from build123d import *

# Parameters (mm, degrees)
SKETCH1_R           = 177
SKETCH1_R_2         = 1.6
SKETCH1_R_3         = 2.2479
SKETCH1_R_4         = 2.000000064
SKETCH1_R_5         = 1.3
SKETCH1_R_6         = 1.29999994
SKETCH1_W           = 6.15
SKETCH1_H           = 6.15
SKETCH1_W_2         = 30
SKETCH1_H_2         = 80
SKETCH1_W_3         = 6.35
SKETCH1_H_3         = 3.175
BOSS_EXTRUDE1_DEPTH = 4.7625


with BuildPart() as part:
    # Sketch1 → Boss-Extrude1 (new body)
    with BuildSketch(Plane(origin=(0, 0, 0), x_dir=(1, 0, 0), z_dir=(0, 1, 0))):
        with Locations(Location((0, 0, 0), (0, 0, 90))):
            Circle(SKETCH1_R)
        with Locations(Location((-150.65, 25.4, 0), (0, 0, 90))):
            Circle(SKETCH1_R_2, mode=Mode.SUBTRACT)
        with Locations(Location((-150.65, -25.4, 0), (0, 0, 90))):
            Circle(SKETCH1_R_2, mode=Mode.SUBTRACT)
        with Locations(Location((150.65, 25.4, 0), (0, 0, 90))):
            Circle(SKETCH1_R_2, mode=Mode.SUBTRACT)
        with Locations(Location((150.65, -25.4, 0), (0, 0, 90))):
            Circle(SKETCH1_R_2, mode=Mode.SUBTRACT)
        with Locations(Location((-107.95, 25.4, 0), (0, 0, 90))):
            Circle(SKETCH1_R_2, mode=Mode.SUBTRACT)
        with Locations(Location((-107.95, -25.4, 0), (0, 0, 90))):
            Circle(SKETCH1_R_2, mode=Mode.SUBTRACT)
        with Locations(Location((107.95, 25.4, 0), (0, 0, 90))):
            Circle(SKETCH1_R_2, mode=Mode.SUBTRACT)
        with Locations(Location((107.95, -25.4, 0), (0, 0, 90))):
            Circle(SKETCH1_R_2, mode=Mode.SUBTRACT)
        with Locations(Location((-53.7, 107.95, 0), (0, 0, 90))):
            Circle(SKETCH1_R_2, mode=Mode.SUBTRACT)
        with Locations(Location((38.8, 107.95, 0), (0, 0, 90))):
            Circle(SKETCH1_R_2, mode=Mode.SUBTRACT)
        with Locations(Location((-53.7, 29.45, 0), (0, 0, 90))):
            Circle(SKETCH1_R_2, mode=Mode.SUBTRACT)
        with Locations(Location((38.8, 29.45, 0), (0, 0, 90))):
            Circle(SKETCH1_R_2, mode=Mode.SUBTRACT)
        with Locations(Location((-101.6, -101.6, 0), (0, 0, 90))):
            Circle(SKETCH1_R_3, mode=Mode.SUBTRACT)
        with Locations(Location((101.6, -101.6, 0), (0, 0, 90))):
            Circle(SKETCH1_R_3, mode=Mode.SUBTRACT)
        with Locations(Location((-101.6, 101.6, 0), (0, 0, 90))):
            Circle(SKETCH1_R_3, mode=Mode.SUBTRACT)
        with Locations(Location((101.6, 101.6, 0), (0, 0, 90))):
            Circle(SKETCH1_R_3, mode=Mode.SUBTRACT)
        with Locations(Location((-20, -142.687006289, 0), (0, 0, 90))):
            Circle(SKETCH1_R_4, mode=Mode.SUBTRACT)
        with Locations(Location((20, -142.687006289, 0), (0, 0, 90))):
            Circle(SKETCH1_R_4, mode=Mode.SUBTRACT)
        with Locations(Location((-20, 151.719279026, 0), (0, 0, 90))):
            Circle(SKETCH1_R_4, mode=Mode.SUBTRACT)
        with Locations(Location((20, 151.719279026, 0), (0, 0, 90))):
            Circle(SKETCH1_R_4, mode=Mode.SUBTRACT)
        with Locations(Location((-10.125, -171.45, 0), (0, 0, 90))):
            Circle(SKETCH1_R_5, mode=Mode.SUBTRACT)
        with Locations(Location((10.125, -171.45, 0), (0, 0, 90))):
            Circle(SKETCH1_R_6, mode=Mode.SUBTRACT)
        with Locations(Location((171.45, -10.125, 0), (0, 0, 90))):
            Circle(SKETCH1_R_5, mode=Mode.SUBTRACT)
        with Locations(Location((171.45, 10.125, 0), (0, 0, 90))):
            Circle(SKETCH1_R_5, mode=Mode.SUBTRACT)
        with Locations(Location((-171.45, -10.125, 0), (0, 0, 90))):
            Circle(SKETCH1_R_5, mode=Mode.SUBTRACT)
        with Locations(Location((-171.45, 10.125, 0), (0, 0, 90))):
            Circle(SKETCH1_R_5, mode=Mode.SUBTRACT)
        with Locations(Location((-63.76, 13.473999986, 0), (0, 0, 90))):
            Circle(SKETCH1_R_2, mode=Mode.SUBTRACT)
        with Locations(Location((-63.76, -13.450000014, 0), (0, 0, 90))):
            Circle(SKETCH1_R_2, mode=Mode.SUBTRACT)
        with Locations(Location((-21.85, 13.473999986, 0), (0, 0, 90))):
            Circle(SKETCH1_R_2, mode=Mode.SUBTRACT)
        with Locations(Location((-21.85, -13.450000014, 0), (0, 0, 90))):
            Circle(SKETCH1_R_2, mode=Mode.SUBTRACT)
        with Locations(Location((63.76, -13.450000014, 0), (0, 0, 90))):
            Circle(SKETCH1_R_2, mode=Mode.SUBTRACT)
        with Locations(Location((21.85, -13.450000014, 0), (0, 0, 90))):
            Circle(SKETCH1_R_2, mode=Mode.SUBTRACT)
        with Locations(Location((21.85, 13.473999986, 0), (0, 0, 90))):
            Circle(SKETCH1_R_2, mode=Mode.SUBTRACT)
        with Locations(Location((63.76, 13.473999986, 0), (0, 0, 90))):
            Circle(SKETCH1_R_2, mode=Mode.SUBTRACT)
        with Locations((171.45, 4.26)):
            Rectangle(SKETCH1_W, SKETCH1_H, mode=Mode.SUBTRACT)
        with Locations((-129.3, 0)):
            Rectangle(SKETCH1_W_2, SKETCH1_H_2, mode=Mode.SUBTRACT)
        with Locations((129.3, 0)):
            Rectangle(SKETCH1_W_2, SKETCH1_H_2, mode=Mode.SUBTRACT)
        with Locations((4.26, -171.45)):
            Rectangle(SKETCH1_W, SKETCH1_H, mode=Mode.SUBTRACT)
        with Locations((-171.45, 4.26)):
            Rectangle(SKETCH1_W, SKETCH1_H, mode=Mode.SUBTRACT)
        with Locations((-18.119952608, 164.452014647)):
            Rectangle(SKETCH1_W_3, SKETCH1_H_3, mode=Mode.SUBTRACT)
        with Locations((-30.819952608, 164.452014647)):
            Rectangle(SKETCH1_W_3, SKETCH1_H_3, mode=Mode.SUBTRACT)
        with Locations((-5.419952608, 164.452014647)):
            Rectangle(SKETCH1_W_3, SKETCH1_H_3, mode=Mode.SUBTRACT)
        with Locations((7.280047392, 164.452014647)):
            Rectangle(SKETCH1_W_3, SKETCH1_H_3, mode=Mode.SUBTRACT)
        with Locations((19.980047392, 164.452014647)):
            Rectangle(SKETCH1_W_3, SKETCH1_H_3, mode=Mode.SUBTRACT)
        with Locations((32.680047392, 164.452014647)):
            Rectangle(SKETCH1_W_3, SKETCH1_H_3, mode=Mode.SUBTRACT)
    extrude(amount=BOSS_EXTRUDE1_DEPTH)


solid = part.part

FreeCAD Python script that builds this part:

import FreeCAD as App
import Part
import Sketcher
Q = App.Units.Quantity

doc = App.newDocument("Part")
body = doc.addObject("PartDesign::Body", "Body")

sketch1 = body.newObject("Sketcher::SketchObject", "Sketch")
sketch1.AttachmentSupport = (doc.getObject("XZ_Plane"), [""])
sketch1.MapMode = "FlatFace"
sketch1.addGeometry([
    Part.Circle(App.Vector(0, 0, 0), App.Vector(0, 0, 1), 177),
    Part.Circle(App.Vector(101.6, 101.6, 0), App.Vector(0, 0, 1), 2.2),
    Part.Circle(App.Vector(171.4, 10.1, 0), App.Vector(0, 0, 1), 1.3),
    Part.Circle(App.Vector(150.7, 25.4, 0), App.Vector(0, 0, 1), 1.6),
    Part.Circle(App.Vector(108, 25.4, 0), App.Vector(0, 0, 1), 1.6),
    Part.Circle(App.Vector(10.1, 171.4, 0), App.Vector(0, 0, 1), 1.3),
    Part.LineSegment(App.Vector(7.3, 174.5, 0), App.Vector(1.2, 174.5, 0)),
    Part.LineSegment(App.Vector(1.2, 174.5, 0), App.Vector(1.2, 168.4, 0)),
    Part.LineSegment(App.Vector(1.2, 168.4, 0), App.Vector(7.3, 168.4, 0)),
    Part.LineSegment(App.Vector(7.3, 168.4, 0), App.Vector(7.3, 174.5, 0)),
    Part.Circle(App.Vector(20, 142.7, 0), App.Vector(0, 0, 1), 2),
    Part.Circle(App.Vector(63.8, 13.5, 0), App.Vector(0, 0, 1), 1.6),
    Part.Circle(App.Vector(21.9, 13.5, 0), App.Vector(0, 0, 1), 1.6),
    Part.LineSegment(App.Vector(174.5, -1.2, 0), App.Vector(168.4, -1.2, 0)),
    Part.LineSegment(App.Vector(168.4, -1.2, 0), App.Vector(168.4, -7.3, 0)),
    Part.LineSegment(App.Vector(168.4, -7.3, 0), App.Vector(174.5, -7.3, 0)),
    Part.LineSegment(App.Vector(174.5, -7.3, 0), App.Vector(174.5, -1.2, 0)),
    Part.Circle(App.Vector(171.4, -10.1, 0), App.Vector(0, 0, 1), 1.3),
    Part.Circle(App.Vector(150.7, -25.4, 0), App.Vector(0, 0, 1), 1.6),
    Part.LineSegment(App.Vector(144.3, 40, 0), App.Vector(114.3, 40, 0)),
    Part.LineSegment(App.Vector(114.3, 40, 0), App.Vector(114.3, -40, 0)),
    Part.LineSegment(App.Vector(114.3, -40, 0), App.Vector(144.3, -40, 0)),
    Part.LineSegment(App.Vector(144.3, -40, 0), App.Vector(144.3, 40, 0)),
    Part.Circle(App.Vector(108, -25.4, 0), App.Vector(0, 0, 1), 1.6),
    Part.Circle(App.Vector(101.6, -101.6, 0), App.Vector(0, 0, 1), 2.2),
    Part.Circle(App.Vector(63.8, -13.5, 0), App.Vector(0, 0, 1), 1.6),
    Part.Circle(App.Vector(21.9, -13.5, 0), App.Vector(0, 0, 1), 1.6),
    Part.Circle(App.Vector(38.8, -29.4, 0), App.Vector(0, 0, 1), 1.6),
    Part.Circle(App.Vector(38.8, -108, 0), App.Vector(0, 0, 1), 1.6),
    Part.LineSegment(App.Vector(35.9, -162.9, 0), App.Vector(29.5, -162.9, 0)),
    Part.LineSegment(App.Vector(29.5, -162.9, 0), App.Vector(29.5, -166, 0)),
    Part.LineSegment(App.Vector(29.5, -166, 0), App.Vector(35.9, -166, 0)),
    Part.LineSegment(App.Vector(35.9, -166, 0), App.Vector(35.9, -162.9, 0)),
    Part.Circle(App.Vector(20, -151.7, 0), App.Vector(0, 0, 1), 2),
    Part.LineSegment(App.Vector(23.2, -162.9, 0), App.Vector(16.8, -162.9, 0)),
    Part.LineSegment(App.Vector(16.8, -162.9, 0), App.Vector(16.8, -166, 0)),
    Part.LineSegment(App.Vector(16.8, -166, 0), App.Vector(23.2, -166, 0)),
    Part.LineSegment(App.Vector(23.2, -166, 0), App.Vector(23.2, -162.9, 0)),
    Part.LineSegment(App.Vector(10.5, -162.9, 0), App.Vector(4.1, -162.9, 0)),
    Part.LineSegment(App.Vector(4.1, -162.9, 0), App.Vector(4.1, -166, 0)),
    Part.LineSegment(App.Vector(4.1, -166, 0), App.Vector(10.5, -166, 0)),
    Part.LineSegment(App.Vector(10.5, -166, 0), App.Vector(10.5, -162.9, 0)),
    Part.Circle(App.Vector(-10.1, 171.4, 0), App.Vector(0, 0, 1), 1.3),
    Part.Circle(App.Vector(-20, 142.7, 0), App.Vector(0, 0, 1), 2),
    Part.Circle(App.Vector(-21.9, 13.5, 0), App.Vector(0, 0, 1), 1.6),
    Part.Circle(App.Vector(-63.8, 13.5, 0), App.Vector(0, 0, 1), 1.6),
    Part.Circle(App.Vector(-101.6, 101.6, 0), App.Vector(0, 0, 1), 2.2),
    Part.Circle(App.Vector(-108, 25.4, 0), App.Vector(0, 0, 1), 1.6),
    Part.Circle(App.Vector(-150.7, 25.4, 0), App.Vector(0, 0, 1), 1.6),
    Part.Circle(App.Vector(-171.4, 10.1, 0), App.Vector(0, 0, 1), 1.3),
    Part.Circle(App.Vector(-21.9, -13.5, 0), App.Vector(0, 0, 1), 1.6),
    Part.Circle(App.Vector(-63.8, -13.5, 0), App.Vector(0, 0, 1), 1.6),
    Part.Circle(App.Vector(-53.7, -29.4, 0), App.Vector(0, 0, 1), 1.6),
    Part.LineSegment(App.Vector(-2.2, -162.9, 0), App.Vector(-8.6, -162.9, 0)),
    Part.LineSegment(App.Vector(-8.6, -162.9, 0), App.Vector(-8.6, -166, 0)),
    Part.LineSegment(App.Vector(-8.6, -166, 0), App.Vector(-2.2, -166, 0)),
    Part.LineSegment(App.Vector(-2.2, -166, 0), App.Vector(-2.2, -162.9, 0)),
    Part.Circle(App.Vector(-20, -151.7, 0), App.Vector(0, 0, 1), 2),
    Part.LineSegment(App.Vector(-14.9, -162.9, 0), App.Vector(-21.3, -162.9, 0)),
    Part.LineSegment(App.Vector(-21.3, -162.9, 0), App.Vector(-21.3, -166, 0)),
    Part.LineSegment(App.Vector(-21.3, -166, 0), App.Vector(-14.9, -166, 0)),
    Part.LineSegment(App.Vector(-14.9, -166, 0), App.Vector(-14.9, -162.9, 0)),
    Part.LineSegment(App.Vector(-27.6, -162.9, 0), App.Vector(-34, -162.9, 0)),
    Part.LineSegment(App.Vector(-34, -162.9, 0), App.Vector(-34, -166, 0)),
    Part.LineSegment(App.Vector(-34, -166, 0), App.Vector(-27.6, -166, 0)),
    Part.LineSegment(App.Vector(-27.6, -166, 0), App.Vector(-27.6, -162.9, 0)),
    Part.Circle(App.Vector(-53.7, -108, 0), App.Vector(0, 0, 1), 1.6),
    Part.Circle(App.Vector(-108, -25.4, 0), App.Vector(0, 0, 1), 1.6),
    Part.LineSegment(App.Vector(-114.3, 40, 0), App.Vector(-144.3, 40, 0)),
    Part.LineSegment(App.Vector(-144.3, 40, 0), App.Vector(-144.3, -40, 0)),
    Part.LineSegment(App.Vector(-144.3, -40, 0), App.Vector(-114.3, -40, 0)),
    Part.LineSegment(App.Vector(-114.3, -40, 0), App.Vector(-114.3, 40, 0)),
    Part.Circle(App.Vector(-150.7, -25.4, 0), App.Vector(0, 0, 1), 1.6),
    Part.LineSegment(App.Vector(-168.4, -1.2, 0), App.Vector(-174.5, -1.2, 0)),
    Part.LineSegment(App.Vector(-174.5, -1.2, 0), App.Vector(-174.5, -7.3, 0)),
    Part.LineSegment(App.Vector(-174.5, -7.3, 0), App.Vector(-168.4, -7.3, 0)),
    Part.LineSegment(App.Vector(-168.4, -7.3, 0), App.Vector(-168.4, -1.2, 0)),
    Part.Circle(App.Vector(-171.4, -10.1, 0), App.Vector(0, 0, 1), 1.3),
    Part.Circle(App.Vector(-101.6, -101.6, 0), App.Vector(0, 0, 1), 2.2),
], False)
sketch1.addConstraint([
    Sketcher.Constraint("Coincident", 6, 2, 7, 1),
    Sketcher.Constraint("Coincident", 7, 2, 8, 1),
    Sketcher.Constraint("Coincident", 8, 2, 9, 1),
    Sketcher.Constraint("Coincident", 9, 2, 6, 1),
    Sketcher.Constraint("Coincident", 13, 2, 14, 1),
    Sketcher.Constraint("Coincident", 14, 2, 15, 1),
    Sketcher.Constraint("Coincident", 15, 2, 16, 1),
    Sketcher.Constraint("Coincident", 16, 2, 13, 1),
    Sketcher.Constraint("Coincident", 19, 2, 20, 1),
    Sketcher.Constraint("Coincident", 20, 2, 21, 1),
    Sketcher.Constraint("Coincident", 21, 2, 22, 1),
    Sketcher.Constraint("Coincident", 22, 2, 19, 1),
    Sketcher.Constraint("Coincident", 29, 2, 30, 1),
    Sketcher.Constraint("Coincident", 30, 2, 31, 1),
    Sketcher.Constraint("Coincident", 31, 2, 32, 1),
    Sketcher.Constraint("Coincident", 32, 2, 29, 1),
    Sketcher.Constraint("Coincident", 34, 2, 35, 1),
    Sketcher.Constraint("Coincident", 35, 2, 36, 1),
    Sketcher.Constraint("Coincident", 36, 2, 37, 1),
    Sketcher.Constraint("Coincident", 37, 2, 34, 1),
    Sketcher.Constraint("Coincident", 38, 2, 39, 1),
    Sketcher.Constraint("Coincident", 39, 2, 40, 1),
    Sketcher.Constraint("Coincident", 40, 2, 41, 1),
    Sketcher.Constraint("Coincident", 41, 2, 38, 1),
    Sketcher.Constraint("Coincident", 53, 2, 54, 1),
    Sketcher.Constraint("Coincident", 54, 2, 55, 1),
    Sketcher.Constraint("Coincident", 55, 2, 56, 1),
    Sketcher.Constraint("Coincident", 56, 2, 53, 1),
    Sketcher.Constraint("Coincident", 58, 2, 59, 1),
    Sketcher.Constraint("Coincident", 59, 2, 60, 1),
    Sketcher.Constraint("Coincident", 60, 2, 61, 1),
    Sketcher.Constraint("Coincident", 61, 2, 58, 1),
    Sketcher.Constraint("Coincident", 62, 2, 63, 1),
    Sketcher.Constraint("Coincident", 63, 2, 64, 1),
    Sketcher.Constraint("Coincident", 64, 2, 65, 1),
    Sketcher.Constraint("Coincident", 65, 2, 62, 1),
    Sketcher.Constraint("Coincident", 68, 2, 69, 1),
    Sketcher.Constraint("Coincident", 69, 2, 70, 1),
    Sketcher.Constraint("Coincident", 70, 2, 71, 1),
    Sketcher.Constraint("Coincident", 71, 2, 68, 1),
    Sketcher.Constraint("Coincident", 73, 2, 74, 1),
    Sketcher.Constraint("Coincident", 74, 2, 75, 1),
    Sketcher.Constraint("Coincident", 75, 2, 76, 1),
    Sketcher.Constraint("Coincident", 76, 2, 73, 1),
    Sketcher.Constraint("Horizontal", 6),
    Sketcher.Constraint("Vertical", 7),
    Sketcher.Constraint("Horizontal", 8),
    Sketcher.Constraint("Vertical", 9),
    Sketcher.Constraint("Horizontal", 13),
    Sketcher.Constraint("Vertical", 14),
    Sketcher.Constraint("Horizontal", 15),
    Sketcher.Constraint("Vertical", 16),
    Sketcher.Constraint("Horizontal", 19),
    Sketcher.Constraint("Vertical", 20),
    Sketcher.Constraint("Horizontal", 21),
    Sketcher.Constraint("Vertical", 22),
    Sketcher.Constraint("Horizontal", 29),
    Sketcher.Constraint("Vertical", 30),
    Sketcher.Constraint("Horizontal", 31),
    Sketcher.Constraint("Vertical", 32),
    Sketcher.Constraint("Horizontal", 34),
    Sketcher.Constraint("Vertical", 35),
    Sketcher.Constraint("Horizontal", 36),
    Sketcher.Constraint("Vertical", 37),
    Sketcher.Constraint("Horizontal", 38),
    Sketcher.Constraint("Vertical", 39),
    Sketcher.Constraint("Horizontal", 40),
    Sketcher.Constraint("Vertical", 41),
    Sketcher.Constraint("Horizontal", 53),
    Sketcher.Constraint("Vertical", 54),
    Sketcher.Constraint("Horizontal", 55),
    Sketcher.Constraint("Vertical", 56),
    Sketcher.Constraint("Horizontal", 58),
    Sketcher.Constraint("Vertical", 59),
    Sketcher.Constraint("Horizontal", 60),
    Sketcher.Constraint("Vertical", 61),
    Sketcher.Constraint("Horizontal", 62),
    Sketcher.Constraint("Vertical", 63),
    Sketcher.Constraint("Horizontal", 64),
    Sketcher.Constraint("Vertical", 65),
    Sketcher.Constraint("Horizontal", 68),
    Sketcher.Constraint("Vertical", 69),
    Sketcher.Constraint("Horizontal", 70),
    Sketcher.Constraint("Vertical", 71),
    Sketcher.Constraint("Horizontal", 73),
    Sketcher.Constraint("Vertical", 74),
    Sketcher.Constraint("Horizontal", 75),
    Sketcher.Constraint("Vertical", 76),
    Sketcher.Constraint("Coincident", 0, 3, -1, 1),
    Sketcher.Constraint("Equal", 3, 4),
    Sketcher.Constraint("Equal", 2, 5),
    Sketcher.Constraint("Equal", 4, 11),
    Sketcher.Constraint("Equal", 11, 12),
    Sketcher.Constraint("Equal", 5, 17),
    Sketcher.Constraint("Equal", 12, 18),
    Sketcher.Constraint("Equal", 18, 23),
    Sketcher.Constraint("Equal", 1, 24),
    Sketcher.Constraint("Equal", 23, 25),
    Sketcher.Constraint("Equal", 25, 26),
    Sketcher.Constraint("Equal", 26, 27),
    Sketcher.Constraint("Equal", 27, 28),
    Sketcher.Constraint("Equal", 10, 33),
    Sketcher.Constraint("Equal", 17, 42),
    Sketcher.Constraint("Equal", 33, 43),
    Sketcher.Constraint("Equal", 28, 44),
    Sketcher.Constraint("Equal", 44, 45),
    Sketcher.Constraint("Equal", 24, 46),
    Sketcher.Constraint("Equal", 45, 47),
    Sketcher.Constraint("Equal", 47, 48),
    Sketcher.Constraint("Equal", 42, 49),
    Sketcher.Constraint("Equal", 48, 50),
    Sketcher.Constraint("Equal", 50, 51),
    Sketcher.Constraint("Equal", 51, 52),
    Sketcher.Constraint("Equal", 43, 57),
    Sketcher.Constraint("Equal", 52, 66),
    Sketcher.Constraint("Equal", 66, 67),
    Sketcher.Constraint("Equal", 67, 72),
    Sketcher.Constraint("Equal", 49, 77),
    Sketcher.Constraint("Equal", 46, 78),
    Sketcher.Constraint("Symmetric", 24, 3, 46, 3, -1, 1),
    Sketcher.Constraint("Symmetric", 23, 3, 47, 3, -1, 1),
    Sketcher.Constraint("Symmetric", 18, 3, 48, 3, -1, 1),
    Sketcher.Constraint("Symmetric", 17, 3, 49, 3, -1, 1),
    Sketcher.Constraint("Symmetric", 4, 3, 67, 3, -1, 1),
    Sketcher.Constraint("Symmetric", 3, 3, 72, 3, -1, 1),
    Sketcher.Constraint("Symmetric", 2, 3, 77, 3, -1, 1),
    Sketcher.Constraint("Symmetric", 1, 3, 78, 3, -1, 1),
    Sketcher.Constraint("Symmetric", 21, 2, 68, 2, -1, 1),
    Sketcher.Constraint("Symmetric", 19, 2, 70, 2, -1, 1),
    Sketcher.Constraint("Symmetric", 5, 3, 42, 3, -2),
    Sketcher.Constraint("Symmetric", 10, 3, 43, 3, -2),
    Sketcher.Constraint("Symmetric", 12, 3, 44, 3, -2),
    Sketcher.Constraint("Symmetric", 11, 3, 45, 3, -2),
    Sketcher.Constraint("Symmetric", 1, 3, 46, 3, -2),
    Sketcher.Constraint("Symmetric", 4, 3, 47, 3, -2),
    Sketcher.Constraint("Symmetric", 3, 3, 48, 3, -2),
    Sketcher.Constraint("Symmetric", 2, 3, 49, 3, -2),
    Sketcher.Constraint("Symmetric", 26, 3, 50, 3, -2),
    Sketcher.Constraint("Symmetric", 25, 3, 51, 3, -2),
    Sketcher.Constraint("Symmetric", 33, 3, 57, 3, -2),
    Sketcher.Constraint("Symmetric", 16, 2, 73, 2, -2),
    Sketcher.Constraint("Symmetric", 14, 2, 75, 2, -2),
    Sketcher.Constraint("Horizontal", 3, 3, 4, 3),
    Sketcher.Constraint("Horizontal", 11, 3, 12, 3),
    Sketcher.Constraint("Horizontal", 25, 3, 26, 3),
    Sketcher.Constraint("Horizontal", 27, 3, 52, 3),
    Sketcher.Constraint("Horizontal", 28, 3, 66, 3),
    Sketcher.Constraint("Horizontal", 32, 2, 34, 2),
    Sketcher.Constraint("Horizontal", 31, 2, 35, 2),
    Sketcher.Constraint("Horizontal", 37, 2, 38, 2),
    Sketcher.Constraint("Horizontal", 36, 2, 39, 2),
    Sketcher.Constraint("Horizontal", 41, 2, 53, 2),
    Sketcher.Constraint("Horizontal", 40, 2, 54, 2),
    Sketcher.Constraint("Horizontal", 56, 2, 58, 2),
    Sketcher.Constraint("Horizontal", 55, 2, 59, 2),
    Sketcher.Constraint("Horizontal", 61, 2, 62, 2),
    Sketcher.Constraint("Horizontal", 60, 2, 63, 2),
    Sketcher.Constraint("Horizontal", 22, 2, 68, 2),
    Sketcher.Constraint("Vertical", 11, 3, 25, 3),
    Sketcher.Constraint("Vertical", 12, 3, 26, 3),
    Sketcher.Constraint("Vertical", 27, 3, 28, 3),
    Sketcher.Constraint("Vertical", 10, 3, 33, 3),
    Sketcher.Constraint("Vertical", 52, 3, 66, 3),
    Sketcher.Constraint("Equal", 8, 13),
    Sketcher.Constraint("Equal", 31, 34),
    Sketcher.Constraint("Equal", 36, 38),
    Sketcher.Constraint("Equal", 40, 53),
    Sketcher.Constraint("Equal", 55, 58),
    Sketcher.Constraint("Equal", 60, 62),
    Sketcher.Constraint("Equal", 75, 7),
    Sketcher.Constraint("Equal", 9, 14),
    Sketcher.Constraint("Diameter", 0, Q("354 mm")),
    Sketcher.Constraint("Diameter", 10, Q("4 mm")),
    Sketcher.Constraint("Diameter", 2, Q("2.6 mm")),
    Sketcher.Constraint("Diameter", 3, Q("3.2 mm")),
    Sketcher.Constraint("DistanceX", 19, 2, 19, 1, Q("30 mm")),
    Sketcher.Constraint("DistanceY", 20, 2, 20, 1, Q("80 mm")),
    Sketcher.Constraint("DistanceX", -1, 1, 10, 3, Q("20 mm")),
    Sketcher.Constraint("Diameter", 1, Q("4.4958 mm")),
    Sketcher.Constraint("DistanceX", 6, 2, 6, 1, Q("6.15 mm")),
    Sketcher.Constraint("DistanceX", 29, 2, 29, 1, Q("6.35 mm")),
    Sketcher.Constraint("DistanceX", -1, 1, 1, 3, Q("101.6 mm")),
    Sketcher.Constraint("DistanceY", -1, 1, 1, 3, Q("101.6 mm")),
    Sketcher.Constraint("DistanceY", -1, 1, 3, 3, Q("25.4 mm")),
    Sketcher.Constraint("DistanceX", -1, 1, 27, 3, Q("38.8 mm")),
    Sketcher.Constraint("DistanceX", 52, 3, -1, 1, Q("53.7 mm")),
    Sketcher.Constraint("DistanceX", -1, 1, 19, 2, Q("114.3 mm")),
    Sketcher.Constraint("DistanceY", 30, 2, 30, 1, Q("3.175 mm")),
    Sketcher.Constraint("DistanceX", -1, 1, 2, 3, Q("171.45 mm")),
    Sketcher.Constraint("DistanceX", -1, 1, 3, 3, Q("150.65 mm")),
    Sketcher.Constraint("DistanceX", -1, 1, 4, 3, Q("107.95 mm")),
    Sketcher.Constraint("DistanceY", -1, 1, 5, 3, Q("171.45 mm")),
    Sketcher.Constraint("DistanceX", -1, 1, 11, 3, Q("63.76 mm")),
    Sketcher.Constraint("DistanceY", -1, 1, 11, 3, Q("13.45 mm")),
    Sketcher.Constraint("DistanceX", -1, 1, 12, 3, Q("21.85 mm")),
    Sketcher.Constraint("DistanceY", 27, 3, -1, 1, Q("29.45 mm")),
    Sketcher.Constraint("DistanceY", 28, 3, -1, 1, Q("107.95 mm")),
    Sketcher.Constraint("DistanceY", -1, 1, 2, 3, Q("10.125 mm")),
    Sketcher.Constraint("DistanceX", -1, 1, 5, 3, Q("10.125 mm")),
    Sketcher.Constraint("DistanceY", 25, 3, -1, 1, Q("13.474 mm")),
    Sketcher.Constraint("DistanceX", -1, 1, 6, 2, Q("1.185 mm")),
    Sketcher.Constraint("DistanceY", -1, 1, 6, 2, Q("174.525 mm")),
    Sketcher.Constraint("DistanceX", -1, 1, 13, 2, Q("168.375 mm")),
    Sketcher.Constraint("DistanceY", 13, 2, -1, 1, Q("1.185 mm")),
    Sketcher.Constraint("DistanceY", 33, 3, -1, 1, Q("151.719279 mm")),
    Sketcher.Constraint("DistanceY", -1, 1, 10, 3, Q("142.687006 mm")),
    Sketcher.Constraint("DistanceX", -1, 1, 29, 2, Q("29.505047 mm")),
    Sketcher.Constraint("DistanceY", 29, 2, -1, 1, Q("162.864515 mm")),
    Sketcher.Constraint("DistanceX", -1, 1, 34, 2, Q("16.805047 mm")),
    Sketcher.Constraint("DistanceX", -1, 1, 38, 2, Q("4.105047 mm")),
    Sketcher.Constraint("DistanceX", 53, 2, -1, 1, Q("8.594953 mm")),
    Sketcher.Constraint("DistanceX", 58, 2, -1, 1, Q("21.294953 mm")),
    Sketcher.Constraint("DistanceX", 62, 2, -1, 1, Q("33.994953 mm")),
])
pad1 = body.newObject("PartDesign::Pad", "Pad")
pad1.Profile = sketch1
pad1.Length = 4.7625
pad1.Reversed = True

doc.recompute()
